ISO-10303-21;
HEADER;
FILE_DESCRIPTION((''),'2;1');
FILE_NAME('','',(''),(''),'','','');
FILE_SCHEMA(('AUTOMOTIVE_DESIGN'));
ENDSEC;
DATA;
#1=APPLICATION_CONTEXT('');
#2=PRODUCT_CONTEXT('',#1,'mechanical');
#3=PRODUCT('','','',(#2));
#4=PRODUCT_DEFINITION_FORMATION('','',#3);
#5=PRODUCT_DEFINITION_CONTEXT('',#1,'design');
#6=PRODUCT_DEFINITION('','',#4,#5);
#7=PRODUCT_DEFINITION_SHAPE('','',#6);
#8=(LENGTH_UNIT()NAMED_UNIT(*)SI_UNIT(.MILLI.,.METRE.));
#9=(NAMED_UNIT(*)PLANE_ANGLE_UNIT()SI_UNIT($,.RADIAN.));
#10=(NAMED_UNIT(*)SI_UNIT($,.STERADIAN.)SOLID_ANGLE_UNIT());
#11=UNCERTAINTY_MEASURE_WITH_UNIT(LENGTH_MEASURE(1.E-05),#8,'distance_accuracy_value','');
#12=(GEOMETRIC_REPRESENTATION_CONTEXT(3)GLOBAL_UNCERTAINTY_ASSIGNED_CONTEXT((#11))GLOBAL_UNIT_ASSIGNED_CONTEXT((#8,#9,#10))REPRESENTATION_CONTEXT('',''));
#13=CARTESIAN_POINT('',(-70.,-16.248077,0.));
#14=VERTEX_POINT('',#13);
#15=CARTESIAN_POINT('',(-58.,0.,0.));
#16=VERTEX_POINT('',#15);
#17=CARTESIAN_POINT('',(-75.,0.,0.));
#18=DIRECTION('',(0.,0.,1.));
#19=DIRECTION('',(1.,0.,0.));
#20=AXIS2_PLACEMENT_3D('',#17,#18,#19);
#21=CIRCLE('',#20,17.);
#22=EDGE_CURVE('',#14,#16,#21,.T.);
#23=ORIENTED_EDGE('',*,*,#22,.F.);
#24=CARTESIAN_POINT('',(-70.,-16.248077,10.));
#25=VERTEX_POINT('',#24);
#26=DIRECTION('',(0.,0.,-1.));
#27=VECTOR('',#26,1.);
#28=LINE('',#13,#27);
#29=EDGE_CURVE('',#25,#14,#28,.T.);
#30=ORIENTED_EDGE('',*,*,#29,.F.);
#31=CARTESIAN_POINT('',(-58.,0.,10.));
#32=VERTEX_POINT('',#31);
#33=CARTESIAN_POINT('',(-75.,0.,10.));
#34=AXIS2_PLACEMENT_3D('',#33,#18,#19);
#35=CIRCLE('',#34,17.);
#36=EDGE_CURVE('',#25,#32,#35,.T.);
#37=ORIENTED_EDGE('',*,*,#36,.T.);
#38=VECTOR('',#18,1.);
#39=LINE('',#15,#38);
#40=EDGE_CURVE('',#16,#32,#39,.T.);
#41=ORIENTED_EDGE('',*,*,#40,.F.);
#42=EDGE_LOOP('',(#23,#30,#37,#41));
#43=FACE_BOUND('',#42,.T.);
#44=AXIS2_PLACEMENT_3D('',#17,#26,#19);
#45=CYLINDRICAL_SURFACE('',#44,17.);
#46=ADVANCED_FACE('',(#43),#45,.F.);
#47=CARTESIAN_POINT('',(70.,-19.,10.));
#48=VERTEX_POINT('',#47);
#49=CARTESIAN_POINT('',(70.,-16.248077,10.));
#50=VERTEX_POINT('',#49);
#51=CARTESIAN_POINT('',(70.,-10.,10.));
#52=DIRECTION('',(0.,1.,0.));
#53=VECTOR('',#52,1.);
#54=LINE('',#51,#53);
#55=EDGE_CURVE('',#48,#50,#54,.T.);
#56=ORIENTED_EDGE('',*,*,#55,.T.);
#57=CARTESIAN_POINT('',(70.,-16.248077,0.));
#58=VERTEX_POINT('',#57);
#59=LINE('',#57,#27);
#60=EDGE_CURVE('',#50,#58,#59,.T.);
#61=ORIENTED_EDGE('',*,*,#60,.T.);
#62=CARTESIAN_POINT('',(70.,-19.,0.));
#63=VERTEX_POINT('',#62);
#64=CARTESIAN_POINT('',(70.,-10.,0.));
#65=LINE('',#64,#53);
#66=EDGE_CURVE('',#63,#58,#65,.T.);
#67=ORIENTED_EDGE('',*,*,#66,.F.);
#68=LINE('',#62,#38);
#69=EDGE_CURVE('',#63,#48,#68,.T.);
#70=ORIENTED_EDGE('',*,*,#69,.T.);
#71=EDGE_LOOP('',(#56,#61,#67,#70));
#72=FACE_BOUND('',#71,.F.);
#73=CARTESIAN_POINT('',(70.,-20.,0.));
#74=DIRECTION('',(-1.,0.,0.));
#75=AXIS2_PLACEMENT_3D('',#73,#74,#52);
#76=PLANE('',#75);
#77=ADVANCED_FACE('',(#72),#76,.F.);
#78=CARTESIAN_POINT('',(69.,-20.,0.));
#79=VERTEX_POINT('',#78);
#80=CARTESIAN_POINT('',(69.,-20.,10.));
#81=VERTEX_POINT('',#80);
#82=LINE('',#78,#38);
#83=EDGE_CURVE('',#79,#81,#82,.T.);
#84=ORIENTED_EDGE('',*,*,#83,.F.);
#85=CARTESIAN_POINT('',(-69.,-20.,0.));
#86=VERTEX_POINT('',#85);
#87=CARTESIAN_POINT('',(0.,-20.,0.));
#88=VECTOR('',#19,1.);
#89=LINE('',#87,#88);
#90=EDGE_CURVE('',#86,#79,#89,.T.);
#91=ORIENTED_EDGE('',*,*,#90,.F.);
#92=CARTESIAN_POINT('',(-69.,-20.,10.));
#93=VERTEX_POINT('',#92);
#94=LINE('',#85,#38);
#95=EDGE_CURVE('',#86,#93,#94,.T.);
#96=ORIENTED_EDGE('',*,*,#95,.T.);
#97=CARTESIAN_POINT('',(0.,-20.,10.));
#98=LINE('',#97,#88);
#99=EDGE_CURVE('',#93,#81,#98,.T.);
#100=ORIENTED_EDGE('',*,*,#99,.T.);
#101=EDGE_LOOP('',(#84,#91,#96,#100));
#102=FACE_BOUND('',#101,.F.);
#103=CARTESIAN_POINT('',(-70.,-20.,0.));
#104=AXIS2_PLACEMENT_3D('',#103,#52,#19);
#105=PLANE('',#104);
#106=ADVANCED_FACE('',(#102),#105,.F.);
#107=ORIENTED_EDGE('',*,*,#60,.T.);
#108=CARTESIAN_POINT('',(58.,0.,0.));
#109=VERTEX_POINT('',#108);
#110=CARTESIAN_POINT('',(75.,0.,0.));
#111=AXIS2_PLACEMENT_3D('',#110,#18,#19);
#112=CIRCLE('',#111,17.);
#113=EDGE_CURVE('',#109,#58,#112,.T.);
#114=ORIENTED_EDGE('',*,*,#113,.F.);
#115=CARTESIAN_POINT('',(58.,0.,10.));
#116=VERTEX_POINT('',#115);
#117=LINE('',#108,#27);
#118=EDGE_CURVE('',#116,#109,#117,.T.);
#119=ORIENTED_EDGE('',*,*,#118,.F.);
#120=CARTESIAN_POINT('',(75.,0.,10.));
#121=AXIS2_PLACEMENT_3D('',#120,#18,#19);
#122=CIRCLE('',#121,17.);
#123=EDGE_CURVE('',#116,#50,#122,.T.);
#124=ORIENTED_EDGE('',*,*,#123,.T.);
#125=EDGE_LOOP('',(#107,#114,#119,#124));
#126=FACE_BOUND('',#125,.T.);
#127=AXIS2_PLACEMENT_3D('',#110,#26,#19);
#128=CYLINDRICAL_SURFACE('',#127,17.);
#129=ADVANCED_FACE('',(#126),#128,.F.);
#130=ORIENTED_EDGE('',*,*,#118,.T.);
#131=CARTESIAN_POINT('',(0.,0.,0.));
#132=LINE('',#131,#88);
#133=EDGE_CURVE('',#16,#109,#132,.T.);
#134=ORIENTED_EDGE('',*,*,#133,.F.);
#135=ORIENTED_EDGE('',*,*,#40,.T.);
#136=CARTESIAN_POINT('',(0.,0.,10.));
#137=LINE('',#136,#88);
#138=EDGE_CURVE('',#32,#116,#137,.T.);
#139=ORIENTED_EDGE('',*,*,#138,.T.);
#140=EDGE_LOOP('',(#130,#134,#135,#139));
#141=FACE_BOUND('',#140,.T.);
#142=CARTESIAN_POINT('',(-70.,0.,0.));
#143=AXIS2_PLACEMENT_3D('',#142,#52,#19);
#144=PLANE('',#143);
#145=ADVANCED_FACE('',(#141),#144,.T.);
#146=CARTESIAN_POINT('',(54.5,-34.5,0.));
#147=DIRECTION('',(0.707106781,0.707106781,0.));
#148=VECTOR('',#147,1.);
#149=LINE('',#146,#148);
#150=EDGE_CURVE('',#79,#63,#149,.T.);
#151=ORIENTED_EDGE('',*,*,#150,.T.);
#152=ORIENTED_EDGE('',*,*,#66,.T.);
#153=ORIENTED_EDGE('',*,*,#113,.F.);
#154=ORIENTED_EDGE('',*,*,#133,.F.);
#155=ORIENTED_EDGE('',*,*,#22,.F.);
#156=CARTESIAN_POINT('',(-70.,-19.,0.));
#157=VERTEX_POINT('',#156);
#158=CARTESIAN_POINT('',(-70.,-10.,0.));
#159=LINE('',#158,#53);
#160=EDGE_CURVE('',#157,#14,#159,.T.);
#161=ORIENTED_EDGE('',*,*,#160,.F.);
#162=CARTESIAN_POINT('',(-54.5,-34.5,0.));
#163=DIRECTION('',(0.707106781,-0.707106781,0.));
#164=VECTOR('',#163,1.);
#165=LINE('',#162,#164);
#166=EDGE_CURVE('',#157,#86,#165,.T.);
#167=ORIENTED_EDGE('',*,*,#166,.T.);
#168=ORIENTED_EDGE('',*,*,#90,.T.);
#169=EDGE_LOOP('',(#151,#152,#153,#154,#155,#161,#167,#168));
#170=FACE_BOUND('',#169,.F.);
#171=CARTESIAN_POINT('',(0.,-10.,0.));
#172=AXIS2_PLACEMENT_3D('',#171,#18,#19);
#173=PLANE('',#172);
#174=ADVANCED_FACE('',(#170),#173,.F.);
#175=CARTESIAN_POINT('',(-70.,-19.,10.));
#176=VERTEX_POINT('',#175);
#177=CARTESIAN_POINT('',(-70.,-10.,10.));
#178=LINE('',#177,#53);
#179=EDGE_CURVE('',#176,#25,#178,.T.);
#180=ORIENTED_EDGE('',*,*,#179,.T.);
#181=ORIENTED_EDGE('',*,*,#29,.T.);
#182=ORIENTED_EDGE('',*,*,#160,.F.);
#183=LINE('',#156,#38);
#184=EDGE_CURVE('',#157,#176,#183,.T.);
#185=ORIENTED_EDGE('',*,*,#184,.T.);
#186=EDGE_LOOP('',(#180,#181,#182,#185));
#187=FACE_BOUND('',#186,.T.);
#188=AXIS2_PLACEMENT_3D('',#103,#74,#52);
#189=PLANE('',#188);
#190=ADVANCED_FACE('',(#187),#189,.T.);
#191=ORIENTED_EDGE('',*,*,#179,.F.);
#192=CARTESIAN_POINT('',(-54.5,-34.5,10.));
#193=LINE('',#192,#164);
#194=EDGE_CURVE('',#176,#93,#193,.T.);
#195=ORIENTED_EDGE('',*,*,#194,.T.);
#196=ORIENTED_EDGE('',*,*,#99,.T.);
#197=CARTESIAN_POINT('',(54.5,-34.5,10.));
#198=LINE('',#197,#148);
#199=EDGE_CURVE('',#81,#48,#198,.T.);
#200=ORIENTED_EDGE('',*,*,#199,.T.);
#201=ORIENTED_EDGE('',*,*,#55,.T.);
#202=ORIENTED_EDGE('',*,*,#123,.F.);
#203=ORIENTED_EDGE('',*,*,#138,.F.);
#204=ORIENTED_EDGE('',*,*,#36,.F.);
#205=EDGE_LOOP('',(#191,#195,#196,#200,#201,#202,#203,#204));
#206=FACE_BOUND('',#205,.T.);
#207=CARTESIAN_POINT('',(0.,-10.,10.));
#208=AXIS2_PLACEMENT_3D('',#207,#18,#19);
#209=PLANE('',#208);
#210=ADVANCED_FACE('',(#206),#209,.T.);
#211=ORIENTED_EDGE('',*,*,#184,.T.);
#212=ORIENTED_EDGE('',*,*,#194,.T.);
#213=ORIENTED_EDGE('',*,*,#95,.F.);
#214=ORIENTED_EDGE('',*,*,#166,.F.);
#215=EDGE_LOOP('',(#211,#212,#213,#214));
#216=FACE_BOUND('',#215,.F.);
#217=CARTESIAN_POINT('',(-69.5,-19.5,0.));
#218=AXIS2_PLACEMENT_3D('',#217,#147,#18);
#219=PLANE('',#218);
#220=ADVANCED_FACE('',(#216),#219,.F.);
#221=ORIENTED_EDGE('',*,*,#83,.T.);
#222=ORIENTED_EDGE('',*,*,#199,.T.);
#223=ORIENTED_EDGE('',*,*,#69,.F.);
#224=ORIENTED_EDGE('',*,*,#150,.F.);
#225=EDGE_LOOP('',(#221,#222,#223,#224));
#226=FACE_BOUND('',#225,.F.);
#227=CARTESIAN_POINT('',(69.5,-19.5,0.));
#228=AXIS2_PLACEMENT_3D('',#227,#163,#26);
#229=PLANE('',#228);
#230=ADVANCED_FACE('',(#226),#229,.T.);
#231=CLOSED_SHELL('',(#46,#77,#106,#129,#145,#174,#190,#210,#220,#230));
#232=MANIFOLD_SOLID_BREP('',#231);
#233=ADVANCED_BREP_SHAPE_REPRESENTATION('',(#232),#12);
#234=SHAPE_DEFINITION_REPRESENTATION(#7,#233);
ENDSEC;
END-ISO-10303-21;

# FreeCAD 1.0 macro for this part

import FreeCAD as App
import Part
import Sketcher


def edges_at(feature, points):
    """Names of the edges that pass closest to the given points."""
    edges = feature.Shape.Edges
    near = lambda p: min(range(len(edges)), key=lambda i: edges[i].distToShape(Part.Vertex(*p))[0])
    return sorted({f"Edge{near(p) + 1}" for p in points})


def add_polygon(sketch, points):
    """Adds a closed chain of lines whose ends are joined by coincident constraints."""
    first, n = sketch.GeometryCount, len(points)
    for a, b in zip(points, points[1:] + points[:1]):
        sketch.addGeometry(Part.LineSegment(App.Vector(*a, 0), App.Vector(*b, 0)), False)
    for i in range(n):
        sketch.addConstraint(Sketcher.Constraint("Coincident", first + i, 2, first + (i + 1) % n, 1))

doc = App.newDocument("Part")
body = doc.addObject("PartDesign::Body", "Body")

# Sketch on XY plane
sketch1 = body.newObject("Sketcher::SketchObject", "Sketch")
sketch1.AttachmentSupport = (doc.getObject("XY_Plane"), [""])
sketch1.MapMode = "FlatFace"
sketch1.addGeometry(Part.Circle(App.Vector(-75, 0, 0), App.Vector(0, 0, 1), 17), False)
sketch1.addConstraint([
    Sketcher.Constraint("PointOnObject", 0, 3, -1),
    Sketcher.Constraint("Diameter", 0, 34.0),
    Sketcher.Constraint("DistanceX", 0, 3, -1, 1, 75.0),
])
pad1 = body.newObject("PartDesign::Pad", "Pad")
pad1.Profile = sketch1
pad1.Length = 10
body2 = doc.addObject("PartDesign::Body", "Body001")

# Sketch on XY plane
sketch2 = body2.newObject("Sketcher::SketchObject", "Sketch001")
sketch2.AttachmentSupport = (doc.getObject("XY_Plane001"), [""])
sketch2.MapMode = "FlatFace"
sketch2.addGeometry(Part.Circle(App.Vector(75, 0, 0), App.Vector(0, 0, 1), 17), False)
sketch2.addConstraint([
    Sketcher.Constraint("PointOnObject", 0, 3, -1),
    Sketcher.Constraint("Diameter", 0, 34.0),
    Sketcher.Constraint("DistanceX", -1, 1, 0, 3, 75.0),
])
pad2 = body2.newObject("PartDesign::Pad", "Pad001")
pad2.Profile = sketch2
pad2.Length = 10
body3 = doc.addObject("PartDesign::Body", "Body002")

# Sketch on XY plane
sketch3 = body3.newObject("Sketcher::SketchObject", "Sketch002")
sketch3.AttachmentSupport = (doc.getObject("XY_Plane002"), [""])
sketch3.MapMode = "FlatFace"
add_polygon(sketch3, [(-70, 0), (-70, -20), (70, -20), (70, 0)])  # lines 0-3
sketch3.addConstraint([
    Sketcher.Constraint("Vertical", 0),
    Sketcher.Constraint("Horizontal", 1),
    Sketcher.Constraint("Vertical", 2),
    Sketcher.Constraint("Horizontal", 3),
    Sketcher.Constraint("Symmetric", 2, 2, 3, 2, -1, 1),
    Sketcher.Constraint("DistanceX", 1, 1, 1, 2, 140.0),
    Sketcher.Constraint("DistanceY", 0, 2, 0, 1, 20.0),
])
pad3 = body3.newObject("PartDesign::Pad", "Pad002")
pad3.Profile = sketch3
pad3.Length = 10
doc.recompute()

boolean = body3.newObject("PartDesign::Boolean", "Boolean")
boolean.Type = "Cut"
boolean.addObjects([body2])
doc.recompute()

boolean2 = body3.newObject("PartDesign::Boolean", "Boolean001")
boolean2.Type = "Cut"
boolean2.addObjects([body])
doc.recompute()

chamfer = body3.newObject("PartDesign::Chamfer", "Chamfer")
chamfer.Base = (boolean2, edges_at(boolean2, [(-70, -20, 5), (70, -20, 5)]))
chamfer.Size = 1

doc.recompute()
